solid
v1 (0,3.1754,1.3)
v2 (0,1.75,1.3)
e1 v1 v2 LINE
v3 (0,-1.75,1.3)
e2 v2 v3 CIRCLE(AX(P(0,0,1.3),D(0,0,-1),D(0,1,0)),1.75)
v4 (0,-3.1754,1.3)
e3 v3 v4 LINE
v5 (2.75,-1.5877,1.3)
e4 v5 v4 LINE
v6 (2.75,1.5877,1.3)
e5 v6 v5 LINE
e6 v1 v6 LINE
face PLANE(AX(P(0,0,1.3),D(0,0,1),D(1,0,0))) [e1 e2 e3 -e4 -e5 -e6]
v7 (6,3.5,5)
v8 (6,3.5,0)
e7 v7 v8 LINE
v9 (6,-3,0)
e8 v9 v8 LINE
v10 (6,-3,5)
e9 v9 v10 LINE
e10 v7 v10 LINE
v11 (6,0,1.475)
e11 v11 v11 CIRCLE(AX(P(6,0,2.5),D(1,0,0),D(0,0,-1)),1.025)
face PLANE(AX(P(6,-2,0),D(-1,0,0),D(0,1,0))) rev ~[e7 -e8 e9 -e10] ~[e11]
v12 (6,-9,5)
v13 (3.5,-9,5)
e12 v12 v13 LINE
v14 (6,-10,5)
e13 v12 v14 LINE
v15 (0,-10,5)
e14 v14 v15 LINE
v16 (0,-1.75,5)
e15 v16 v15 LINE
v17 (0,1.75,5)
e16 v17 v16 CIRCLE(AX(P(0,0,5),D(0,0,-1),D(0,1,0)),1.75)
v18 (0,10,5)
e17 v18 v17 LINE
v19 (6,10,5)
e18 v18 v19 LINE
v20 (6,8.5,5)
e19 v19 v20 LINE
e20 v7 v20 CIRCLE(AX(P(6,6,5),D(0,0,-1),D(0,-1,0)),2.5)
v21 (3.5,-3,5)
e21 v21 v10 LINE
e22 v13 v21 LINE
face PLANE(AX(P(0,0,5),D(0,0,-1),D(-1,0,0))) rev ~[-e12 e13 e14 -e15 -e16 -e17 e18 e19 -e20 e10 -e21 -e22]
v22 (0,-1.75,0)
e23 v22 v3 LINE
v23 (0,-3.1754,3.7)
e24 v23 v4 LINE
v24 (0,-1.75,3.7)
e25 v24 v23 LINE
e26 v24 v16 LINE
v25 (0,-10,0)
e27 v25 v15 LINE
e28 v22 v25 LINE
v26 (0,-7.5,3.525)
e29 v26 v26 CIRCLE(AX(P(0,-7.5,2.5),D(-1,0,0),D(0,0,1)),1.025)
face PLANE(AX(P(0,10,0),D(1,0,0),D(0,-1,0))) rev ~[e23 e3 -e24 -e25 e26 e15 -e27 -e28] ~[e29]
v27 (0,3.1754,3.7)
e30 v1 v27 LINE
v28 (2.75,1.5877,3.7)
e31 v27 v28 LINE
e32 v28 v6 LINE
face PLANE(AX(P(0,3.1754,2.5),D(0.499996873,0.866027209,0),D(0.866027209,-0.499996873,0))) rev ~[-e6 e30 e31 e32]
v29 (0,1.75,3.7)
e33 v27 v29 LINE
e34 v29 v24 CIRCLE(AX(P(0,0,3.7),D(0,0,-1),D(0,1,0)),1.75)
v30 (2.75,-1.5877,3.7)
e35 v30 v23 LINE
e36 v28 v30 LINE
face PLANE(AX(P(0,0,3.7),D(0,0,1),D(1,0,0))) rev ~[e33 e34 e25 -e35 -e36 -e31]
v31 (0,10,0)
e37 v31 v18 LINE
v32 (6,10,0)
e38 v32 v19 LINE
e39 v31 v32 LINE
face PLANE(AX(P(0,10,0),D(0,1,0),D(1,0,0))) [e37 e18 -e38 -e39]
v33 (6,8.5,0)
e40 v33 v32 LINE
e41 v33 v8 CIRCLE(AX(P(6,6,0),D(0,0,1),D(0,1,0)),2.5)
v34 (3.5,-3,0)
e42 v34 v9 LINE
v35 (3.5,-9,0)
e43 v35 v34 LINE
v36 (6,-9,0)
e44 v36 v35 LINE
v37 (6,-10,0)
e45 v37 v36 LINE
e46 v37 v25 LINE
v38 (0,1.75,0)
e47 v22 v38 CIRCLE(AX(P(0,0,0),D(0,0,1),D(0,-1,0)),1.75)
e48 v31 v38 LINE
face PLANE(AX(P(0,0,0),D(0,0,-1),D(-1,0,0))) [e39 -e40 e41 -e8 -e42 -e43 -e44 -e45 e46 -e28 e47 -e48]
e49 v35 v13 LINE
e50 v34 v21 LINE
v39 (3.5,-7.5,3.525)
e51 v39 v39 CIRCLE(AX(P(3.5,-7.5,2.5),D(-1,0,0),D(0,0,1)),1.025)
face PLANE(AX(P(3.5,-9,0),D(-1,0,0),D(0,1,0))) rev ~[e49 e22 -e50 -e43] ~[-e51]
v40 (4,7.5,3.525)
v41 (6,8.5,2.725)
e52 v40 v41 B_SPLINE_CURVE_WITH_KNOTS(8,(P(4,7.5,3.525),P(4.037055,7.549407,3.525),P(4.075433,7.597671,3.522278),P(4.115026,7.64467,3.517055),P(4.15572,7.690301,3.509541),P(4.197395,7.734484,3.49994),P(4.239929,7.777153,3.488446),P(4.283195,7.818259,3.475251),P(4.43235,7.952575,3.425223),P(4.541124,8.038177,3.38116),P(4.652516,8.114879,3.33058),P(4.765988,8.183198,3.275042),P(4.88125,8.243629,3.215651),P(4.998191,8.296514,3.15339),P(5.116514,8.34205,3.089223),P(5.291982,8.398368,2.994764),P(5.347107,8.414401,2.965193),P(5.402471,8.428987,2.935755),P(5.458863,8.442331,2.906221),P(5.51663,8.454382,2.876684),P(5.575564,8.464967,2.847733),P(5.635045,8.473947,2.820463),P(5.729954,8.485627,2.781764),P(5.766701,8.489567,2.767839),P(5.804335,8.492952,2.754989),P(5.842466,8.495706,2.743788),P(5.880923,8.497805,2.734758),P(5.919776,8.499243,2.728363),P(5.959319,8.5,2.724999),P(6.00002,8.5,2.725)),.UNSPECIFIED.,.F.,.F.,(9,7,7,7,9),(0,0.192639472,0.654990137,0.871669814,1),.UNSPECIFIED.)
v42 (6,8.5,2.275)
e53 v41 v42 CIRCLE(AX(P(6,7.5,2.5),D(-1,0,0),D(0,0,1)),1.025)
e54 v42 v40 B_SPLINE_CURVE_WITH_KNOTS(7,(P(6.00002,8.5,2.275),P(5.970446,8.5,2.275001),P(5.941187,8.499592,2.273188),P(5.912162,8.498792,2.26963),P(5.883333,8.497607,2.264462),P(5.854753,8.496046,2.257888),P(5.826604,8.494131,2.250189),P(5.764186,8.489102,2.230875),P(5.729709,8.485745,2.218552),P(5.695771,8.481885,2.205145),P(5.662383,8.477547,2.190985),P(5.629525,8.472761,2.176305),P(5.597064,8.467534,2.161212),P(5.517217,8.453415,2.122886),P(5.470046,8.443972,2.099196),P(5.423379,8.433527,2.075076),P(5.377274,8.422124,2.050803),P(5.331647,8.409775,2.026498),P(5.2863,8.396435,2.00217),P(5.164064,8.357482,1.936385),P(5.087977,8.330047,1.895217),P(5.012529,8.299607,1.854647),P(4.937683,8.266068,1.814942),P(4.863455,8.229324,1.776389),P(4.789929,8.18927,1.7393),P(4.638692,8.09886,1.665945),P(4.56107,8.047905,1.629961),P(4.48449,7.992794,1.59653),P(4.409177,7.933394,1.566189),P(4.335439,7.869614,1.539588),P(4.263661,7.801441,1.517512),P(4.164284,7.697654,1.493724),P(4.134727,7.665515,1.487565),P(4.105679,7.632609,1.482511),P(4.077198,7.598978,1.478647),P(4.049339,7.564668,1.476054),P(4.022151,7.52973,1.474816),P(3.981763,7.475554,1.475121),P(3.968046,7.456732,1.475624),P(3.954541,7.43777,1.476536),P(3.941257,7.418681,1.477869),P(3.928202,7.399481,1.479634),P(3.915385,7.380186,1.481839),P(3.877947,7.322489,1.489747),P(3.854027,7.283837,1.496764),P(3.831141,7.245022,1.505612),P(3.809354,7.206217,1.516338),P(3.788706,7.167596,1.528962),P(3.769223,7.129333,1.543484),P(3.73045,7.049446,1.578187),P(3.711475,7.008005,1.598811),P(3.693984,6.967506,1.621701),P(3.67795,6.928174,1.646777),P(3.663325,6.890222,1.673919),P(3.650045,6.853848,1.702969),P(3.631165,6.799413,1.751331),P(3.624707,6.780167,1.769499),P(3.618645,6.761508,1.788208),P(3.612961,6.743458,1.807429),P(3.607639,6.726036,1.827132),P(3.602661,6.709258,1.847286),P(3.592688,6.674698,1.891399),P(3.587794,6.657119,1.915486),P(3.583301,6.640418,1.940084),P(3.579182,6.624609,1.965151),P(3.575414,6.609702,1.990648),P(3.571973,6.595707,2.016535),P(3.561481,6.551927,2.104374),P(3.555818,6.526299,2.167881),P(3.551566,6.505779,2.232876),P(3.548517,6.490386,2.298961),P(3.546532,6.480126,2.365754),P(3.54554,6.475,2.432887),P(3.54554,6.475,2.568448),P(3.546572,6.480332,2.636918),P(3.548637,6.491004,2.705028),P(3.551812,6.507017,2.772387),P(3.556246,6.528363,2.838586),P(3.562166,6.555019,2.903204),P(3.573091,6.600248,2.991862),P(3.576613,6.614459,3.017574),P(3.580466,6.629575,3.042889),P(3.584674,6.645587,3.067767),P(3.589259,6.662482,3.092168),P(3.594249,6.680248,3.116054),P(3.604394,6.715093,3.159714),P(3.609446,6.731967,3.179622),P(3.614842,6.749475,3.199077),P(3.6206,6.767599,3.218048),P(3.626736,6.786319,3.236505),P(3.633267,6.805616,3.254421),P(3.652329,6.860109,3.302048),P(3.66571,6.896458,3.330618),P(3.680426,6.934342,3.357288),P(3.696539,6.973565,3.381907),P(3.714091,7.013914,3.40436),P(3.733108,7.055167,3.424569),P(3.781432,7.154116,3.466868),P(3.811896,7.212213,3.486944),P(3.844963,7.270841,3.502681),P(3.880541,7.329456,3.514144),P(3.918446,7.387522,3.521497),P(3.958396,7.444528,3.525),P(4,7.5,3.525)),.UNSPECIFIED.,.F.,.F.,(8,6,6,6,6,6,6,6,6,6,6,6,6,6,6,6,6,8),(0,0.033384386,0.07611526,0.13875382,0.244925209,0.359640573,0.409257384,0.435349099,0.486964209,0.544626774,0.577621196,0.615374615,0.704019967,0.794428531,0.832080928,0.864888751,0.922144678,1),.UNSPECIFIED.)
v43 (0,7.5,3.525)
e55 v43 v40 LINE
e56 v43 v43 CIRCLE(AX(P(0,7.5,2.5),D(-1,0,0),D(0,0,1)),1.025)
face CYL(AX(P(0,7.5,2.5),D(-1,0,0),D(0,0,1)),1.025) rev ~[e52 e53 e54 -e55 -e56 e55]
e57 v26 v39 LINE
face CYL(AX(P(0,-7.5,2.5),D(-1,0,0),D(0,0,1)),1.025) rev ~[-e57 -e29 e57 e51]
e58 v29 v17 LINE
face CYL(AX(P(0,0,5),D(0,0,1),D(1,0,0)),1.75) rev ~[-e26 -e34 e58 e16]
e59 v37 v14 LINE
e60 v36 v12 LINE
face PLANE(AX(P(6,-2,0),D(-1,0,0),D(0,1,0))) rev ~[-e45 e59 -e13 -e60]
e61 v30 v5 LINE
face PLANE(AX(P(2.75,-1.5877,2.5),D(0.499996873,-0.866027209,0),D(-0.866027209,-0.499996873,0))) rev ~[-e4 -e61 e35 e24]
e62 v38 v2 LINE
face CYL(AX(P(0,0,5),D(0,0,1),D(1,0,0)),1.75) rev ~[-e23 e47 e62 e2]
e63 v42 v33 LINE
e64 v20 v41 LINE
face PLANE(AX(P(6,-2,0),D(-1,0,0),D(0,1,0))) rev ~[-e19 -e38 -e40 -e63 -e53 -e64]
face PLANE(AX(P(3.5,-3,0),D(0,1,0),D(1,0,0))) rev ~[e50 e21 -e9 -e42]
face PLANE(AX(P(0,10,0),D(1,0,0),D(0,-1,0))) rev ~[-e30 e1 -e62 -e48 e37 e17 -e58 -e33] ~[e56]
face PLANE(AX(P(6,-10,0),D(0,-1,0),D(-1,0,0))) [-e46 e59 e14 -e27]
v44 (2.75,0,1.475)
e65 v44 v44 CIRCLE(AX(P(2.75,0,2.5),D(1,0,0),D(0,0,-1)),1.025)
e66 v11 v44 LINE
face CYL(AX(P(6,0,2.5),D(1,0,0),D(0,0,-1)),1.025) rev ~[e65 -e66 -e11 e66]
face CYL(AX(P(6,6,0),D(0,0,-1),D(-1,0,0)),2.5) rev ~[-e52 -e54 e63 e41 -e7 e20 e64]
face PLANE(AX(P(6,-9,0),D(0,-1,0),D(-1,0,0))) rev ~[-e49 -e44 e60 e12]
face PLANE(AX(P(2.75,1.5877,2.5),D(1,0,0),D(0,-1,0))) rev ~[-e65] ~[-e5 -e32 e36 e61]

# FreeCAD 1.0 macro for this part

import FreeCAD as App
import Part
import Sketcher
Q = App.Units.Quantity


def add_polygon(sketch, points):
    """Adds a closed chain of lines whose ends are joined by coincident constraints."""
    first, n = sketch.GeometryCount, len(points)
    for a, b in zip(points, points[1:] + points[:1]):
        sketch.addGeometry(Part.LineSegment(App.Vector(*a, 0), App.Vector(*b, 0)), False)
    for i in range(n):
        sketch.addConstraint(Sketcher.Constraint("Coincident", first + i, 2, first + (i + 1) % n, 1))

doc = App.newDocument("Part")
body = doc.addObject("PartDesign::Body", "Body")

# Sketch on XY plane
sketch1 = body.newObject("Sketcher::SketchObject", "Sketch")
sketch1.AttachmentSupport = (doc.getObject("XY_Plane"), [""])
sketch1.MapMode = "FlatFace"
add_polygon(sketch1, [(0, -10), (6, -10), (6, -2), (4, -2), (4, 2), (6, 2), (6, 10), (0, 10)])  # lines 0-7
sketch1.addConstraint(Sketcher.Constraint("Horizontal", 0))
sketch1.addConstraint(Sketcher.Constraint("Vertical", 1))
sketch1.addConstraint(Sketcher.Constraint("Horizontal", 2))
sketch1.addConstraint(Sketcher.Constraint("Vertical", 3))
sketch1.addConstraint(Sketcher.Constraint("Horizontal", 4))
sketch1.addConstraint(Sketcher.Constraint("Vertical", 5))
sketch1.addConstraint(Sketcher.Constraint("Horizontal", 6))
sketch1.addConstraint(Sketcher.Constraint("Vertical", 7))
sketch1.addConstraint(Sketcher.Constraint("Symmetric", 6, 2, 7, 2, -1, 1))
sketch1.addConstraint(Sketcher.Constraint("Symmetric", 1, 2, 4, 2, -1))
sketch1.addConstraint(Sketcher.Constraint("DistanceX", 2, 2, 2, 1, Q("2 mm")))
sketch1.addConstraint(Sketcher.Constraint("DistanceY", 3, 1, 3, 2, Q("4 mm")))
sketch1.addConstraint(Sketcher.Constraint("DistanceY", 7, 2, 7, 1, Q("20 mm")))
sketch1.addConstraint(Sketcher.Constraint("DistanceX", -1, 1, 2, 2, Q("4 mm")))
pad1 = body.newObject("PartDesign::Pad", "Pad")
pad1.Profile = sketch1
pad1.Length = 5

# Sketch on XY plane
sketch2 = body.newObject("Sketcher::SketchObject", "Sketch001")
sketch2.AttachmentSupport = (doc.getObject("XY_Plane"), [""])
sketch2.MapMode = "FlatFace"
sketch2.AttachmentOffset = App.Placement(App.Vector(0, 0, 2.5), App.Rotation())
add_polygon(sketch2, [(2.8, 1.6), (0, 3.2), (-2.8, 1.6), (-2.8, -1.6), (0, -3.2), (2.8, -1.6)])  # lines 0-5
sketch2.addConstraint(Sketcher.Constraint("Vertical", 2))
sketch2.addConstraint(Sketcher.Constraint("Vertical", 5))
sketch2.addConstraint(Sketcher.Constraint("Symmetric", 0, 2, 3, 2, -1, 1))
sketch2.addConstraint(Sketcher.Constraint("Symmetric", 1, 2, 4, 2, -1, 1))
sketch2.addConstraint(Sketcher.Constraint("PointOnObject", 0, 2, -2))
sketch2.addConstraint(Sketcher.Constraint("Parallel", 0, 3))
sketch2.addConstraint(Sketcher.Constraint("Horizontal", 2, 2, 4, 2))
sketch2.addConstraint(Sketcher.Constraint("DistanceX", 2, 2, 4, 2, Q("5.5 mm")))
sketch2.addConstraint(Sketcher.Constraint("Angle", 0, Q("150.0002 deg")))
sketch2.addConstraint(Sketcher.Constraint("DistanceY", 2, 2, 2, 1, Q("3.1754 mm")))
pocket1 = body.newObject("PartDesign::Pocket", "Pocket")
pocket1.Profile = sketch2
pocket1.Length = 2.4
pocket1.Midplane = True

# Sketch on XY plane
sketch3 = body.newObject("Sketcher::SketchObject", "Sketch002")
sketch3.AttachmentSupport = (doc.getObject("XY_Plane"), [""])
sketch3.MapMode = "FlatFace"
sketch3.AttachmentOffset = App.Placement(App.Vector(0, 0, 5), App.Rotation())
sketch3.addGeometry(Part.Circle(App.Vector(0, 0, 0), App.Vector(0, 0, 1), 1.8), False)
sketch3.addConstraint(Sketcher.Constraint("Coincident", 0, 3, -1, 1))
sketch3.addConstraint(Sketcher.Constraint("Diameter", 0, Q("3.5 mm")))
pocket2 = body.newObject("PartDesign::Pocket", "Pocket001")
pocket2.Profile = sketch3
pocket2.Length = 8

# Sketch on YZ plane
sketch4 = body.newObject("Sketcher::SketchObject", "Sketch003")
sketch4.AttachmentSupport = (doc.getObject("YZ_Plane"), [""])
sketch4.MapMode = "FlatFace"
sketch4.addGeometry(Part.Circle(App.Vector(7.5, 2.5, 0), App.Vector(0, 0, 1), 1), False)
sketch4.addGeometry(Part.Circle(App.Vector(-7.5, 2.5, 0), App.Vector(0, 0, 1), 1), False)
sketch4.addConstraint(Sketcher.Constraint("Equal", 0, 1))
sketch4.addConstraint(Sketcher.Constraint("Symmetric", 0, 3, 1, 3, -2))
sketch4.addConstraint(Sketcher.Constraint("Diameter", 0, Q("2.05 mm")))
sketch4.addConstraint(Sketcher.Constraint("DistanceY", -1, 1, 0, 3, Q("2.5 mm")))
sketch4.addConstraint(Sketcher.Constraint("DistanceX", 1, 3, 0, 3, Q("15 mm")))
pocket3 = body.newObject("PartDesign::Pocket", "Pocket002")
pocket3.Profile = sketch4
pocket3.Length = 25
pocket3.Reversed = True

# Sketch on XY plane
sketch5 = body.newObject("Sketcher::SketchObject", "Sketch004")
sketch5.AttachmentSupport = (doc.getObject("XY_Plane"), [""])
sketch5.MapMode = "FlatFace"
add_polygon(sketch5, [(6, 2), (6, -2), (4, -2), (4, 2)])  # lines 0-3
sketch5.addConstraint(Sketcher.Constraint("Vertical", 0))
sketch5.addConstraint(Sketcher.Constraint("Horizontal", 1))
sketch5.addConstraint(Sketcher.Constraint("Vertical", 2))
sketch5.addConstraint(Sketcher.Constraint("Horizontal", 3))
sketch5.addConstraint(Sketcher.Constraint("DistanceX", 1, 2, 1, 1, Q("2 mm")))
sketch5.addConstraint(Sketcher.Constraint("DistanceY", 0, 2, 0, 1, Q("4 mm")))
sketch5.addConstraint(Sketcher.Constraint("DistanceX", -1, 1, 0, 2, Q("6 mm")))
sketch5.addConstraint(Sketcher.Constraint("DistanceY", 0, 2, -1, 1, Q("2 mm")))
pad2 = body.newObject("PartDesign::Pad", "Pad001")
pad2.Profile = sketch5
pad2.Length = 5

# Sketch on XY plane
sketch6 = body.newObject("Sketcher::SketchObject", "Sketch005")
sketch6.AttachmentSupport = (doc.getObject("XY_Plane"), [""])
sketch6.MapMode = "FlatFace"
sketch6.addGeometry(Part.Circle(App.Vector(6, 6, 0), App.Vector(0, 0, 1), 2.5), False)  # 0
add_polygon(sketch6, [(6, -3), (6, -9), (3.5, -9), (3.5, -3)])  # lines 1-4
sketch6.addConstraint(Sketcher.Constraint("Vertical", 1))
sketch6.addConstraint(Sketcher.Constraint("Horizontal", 2))
sketch6.addConstraint(Sketcher.Constraint("Vertical", 3))
sketch6.addConstraint(Sketcher.Constraint("Horizontal", 4))
sketch6.addConstraint(Sketcher.Constraint("Vertical", 0, 3, 1, 2))
sketch6.addConstraint(Sketcher.Constraint("Diameter", 0, Q("5 mm")))
sketch6.addConstraint(Sketcher.Constraint("DistanceY", 1, 2, 1, 1, Q("6 mm")))
sketch6.addConstraint(Sketcher.Constraint("DistanceX", 2, 2, 2, 1, Q("2.5 mm")))
sketch6.addConstraint(Sketcher.Constraint("DistanceX", -1, 1, 0, 3, Q("6 mm")))
sketch6.addConstraint(Sketcher.Constraint("DistanceY", -1, 1, 0, 3, Q("6 mm")))
sketch6.addConstraint(Sketcher.Constraint("DistanceY", 1, 2, -1, 1, Q("9 mm")))
pocket4 = body.newObject("PartDesign::Pocket", "Pocket003")
pocket4.Profile = sketch6
pocket4.Length = 5
pocket4.Reversed = True

# Sketch on YZ plane
sketch7 = body.newObject("Sketcher::SketchObject", "Sketch006")
sketch7.AttachmentSupport = (doc.getObject("YZ_Plane"), [""])
sketch7.MapMode = "FlatFace"
sketch7.AttachmentOffset = App.Placement(App.Vector(0, 0, 6), App.Rotation())
sketch7.addGeometry(Part.Circle(App.Vector(0, 2.5, 0), App.Vector(0, 0, 1), 1), False)
sketch7.addConstraint(Sketcher.Constraint("PointOnObject", 0, 3, -2))
sketch7.addConstraint(Sketcher.Constraint("Diameter", 0, Q("2.05 mm")))
sketch7.addConstraint(Sketcher.Constraint("DistanceY", -1, 1, 0, 3, Q("2.5 mm")))
pocket5 = body.newObject("PartDesign::Pocket", "Pocket004")
pocket5.Profile = sketch7
pocket5.Length = 20

doc.recompute()
